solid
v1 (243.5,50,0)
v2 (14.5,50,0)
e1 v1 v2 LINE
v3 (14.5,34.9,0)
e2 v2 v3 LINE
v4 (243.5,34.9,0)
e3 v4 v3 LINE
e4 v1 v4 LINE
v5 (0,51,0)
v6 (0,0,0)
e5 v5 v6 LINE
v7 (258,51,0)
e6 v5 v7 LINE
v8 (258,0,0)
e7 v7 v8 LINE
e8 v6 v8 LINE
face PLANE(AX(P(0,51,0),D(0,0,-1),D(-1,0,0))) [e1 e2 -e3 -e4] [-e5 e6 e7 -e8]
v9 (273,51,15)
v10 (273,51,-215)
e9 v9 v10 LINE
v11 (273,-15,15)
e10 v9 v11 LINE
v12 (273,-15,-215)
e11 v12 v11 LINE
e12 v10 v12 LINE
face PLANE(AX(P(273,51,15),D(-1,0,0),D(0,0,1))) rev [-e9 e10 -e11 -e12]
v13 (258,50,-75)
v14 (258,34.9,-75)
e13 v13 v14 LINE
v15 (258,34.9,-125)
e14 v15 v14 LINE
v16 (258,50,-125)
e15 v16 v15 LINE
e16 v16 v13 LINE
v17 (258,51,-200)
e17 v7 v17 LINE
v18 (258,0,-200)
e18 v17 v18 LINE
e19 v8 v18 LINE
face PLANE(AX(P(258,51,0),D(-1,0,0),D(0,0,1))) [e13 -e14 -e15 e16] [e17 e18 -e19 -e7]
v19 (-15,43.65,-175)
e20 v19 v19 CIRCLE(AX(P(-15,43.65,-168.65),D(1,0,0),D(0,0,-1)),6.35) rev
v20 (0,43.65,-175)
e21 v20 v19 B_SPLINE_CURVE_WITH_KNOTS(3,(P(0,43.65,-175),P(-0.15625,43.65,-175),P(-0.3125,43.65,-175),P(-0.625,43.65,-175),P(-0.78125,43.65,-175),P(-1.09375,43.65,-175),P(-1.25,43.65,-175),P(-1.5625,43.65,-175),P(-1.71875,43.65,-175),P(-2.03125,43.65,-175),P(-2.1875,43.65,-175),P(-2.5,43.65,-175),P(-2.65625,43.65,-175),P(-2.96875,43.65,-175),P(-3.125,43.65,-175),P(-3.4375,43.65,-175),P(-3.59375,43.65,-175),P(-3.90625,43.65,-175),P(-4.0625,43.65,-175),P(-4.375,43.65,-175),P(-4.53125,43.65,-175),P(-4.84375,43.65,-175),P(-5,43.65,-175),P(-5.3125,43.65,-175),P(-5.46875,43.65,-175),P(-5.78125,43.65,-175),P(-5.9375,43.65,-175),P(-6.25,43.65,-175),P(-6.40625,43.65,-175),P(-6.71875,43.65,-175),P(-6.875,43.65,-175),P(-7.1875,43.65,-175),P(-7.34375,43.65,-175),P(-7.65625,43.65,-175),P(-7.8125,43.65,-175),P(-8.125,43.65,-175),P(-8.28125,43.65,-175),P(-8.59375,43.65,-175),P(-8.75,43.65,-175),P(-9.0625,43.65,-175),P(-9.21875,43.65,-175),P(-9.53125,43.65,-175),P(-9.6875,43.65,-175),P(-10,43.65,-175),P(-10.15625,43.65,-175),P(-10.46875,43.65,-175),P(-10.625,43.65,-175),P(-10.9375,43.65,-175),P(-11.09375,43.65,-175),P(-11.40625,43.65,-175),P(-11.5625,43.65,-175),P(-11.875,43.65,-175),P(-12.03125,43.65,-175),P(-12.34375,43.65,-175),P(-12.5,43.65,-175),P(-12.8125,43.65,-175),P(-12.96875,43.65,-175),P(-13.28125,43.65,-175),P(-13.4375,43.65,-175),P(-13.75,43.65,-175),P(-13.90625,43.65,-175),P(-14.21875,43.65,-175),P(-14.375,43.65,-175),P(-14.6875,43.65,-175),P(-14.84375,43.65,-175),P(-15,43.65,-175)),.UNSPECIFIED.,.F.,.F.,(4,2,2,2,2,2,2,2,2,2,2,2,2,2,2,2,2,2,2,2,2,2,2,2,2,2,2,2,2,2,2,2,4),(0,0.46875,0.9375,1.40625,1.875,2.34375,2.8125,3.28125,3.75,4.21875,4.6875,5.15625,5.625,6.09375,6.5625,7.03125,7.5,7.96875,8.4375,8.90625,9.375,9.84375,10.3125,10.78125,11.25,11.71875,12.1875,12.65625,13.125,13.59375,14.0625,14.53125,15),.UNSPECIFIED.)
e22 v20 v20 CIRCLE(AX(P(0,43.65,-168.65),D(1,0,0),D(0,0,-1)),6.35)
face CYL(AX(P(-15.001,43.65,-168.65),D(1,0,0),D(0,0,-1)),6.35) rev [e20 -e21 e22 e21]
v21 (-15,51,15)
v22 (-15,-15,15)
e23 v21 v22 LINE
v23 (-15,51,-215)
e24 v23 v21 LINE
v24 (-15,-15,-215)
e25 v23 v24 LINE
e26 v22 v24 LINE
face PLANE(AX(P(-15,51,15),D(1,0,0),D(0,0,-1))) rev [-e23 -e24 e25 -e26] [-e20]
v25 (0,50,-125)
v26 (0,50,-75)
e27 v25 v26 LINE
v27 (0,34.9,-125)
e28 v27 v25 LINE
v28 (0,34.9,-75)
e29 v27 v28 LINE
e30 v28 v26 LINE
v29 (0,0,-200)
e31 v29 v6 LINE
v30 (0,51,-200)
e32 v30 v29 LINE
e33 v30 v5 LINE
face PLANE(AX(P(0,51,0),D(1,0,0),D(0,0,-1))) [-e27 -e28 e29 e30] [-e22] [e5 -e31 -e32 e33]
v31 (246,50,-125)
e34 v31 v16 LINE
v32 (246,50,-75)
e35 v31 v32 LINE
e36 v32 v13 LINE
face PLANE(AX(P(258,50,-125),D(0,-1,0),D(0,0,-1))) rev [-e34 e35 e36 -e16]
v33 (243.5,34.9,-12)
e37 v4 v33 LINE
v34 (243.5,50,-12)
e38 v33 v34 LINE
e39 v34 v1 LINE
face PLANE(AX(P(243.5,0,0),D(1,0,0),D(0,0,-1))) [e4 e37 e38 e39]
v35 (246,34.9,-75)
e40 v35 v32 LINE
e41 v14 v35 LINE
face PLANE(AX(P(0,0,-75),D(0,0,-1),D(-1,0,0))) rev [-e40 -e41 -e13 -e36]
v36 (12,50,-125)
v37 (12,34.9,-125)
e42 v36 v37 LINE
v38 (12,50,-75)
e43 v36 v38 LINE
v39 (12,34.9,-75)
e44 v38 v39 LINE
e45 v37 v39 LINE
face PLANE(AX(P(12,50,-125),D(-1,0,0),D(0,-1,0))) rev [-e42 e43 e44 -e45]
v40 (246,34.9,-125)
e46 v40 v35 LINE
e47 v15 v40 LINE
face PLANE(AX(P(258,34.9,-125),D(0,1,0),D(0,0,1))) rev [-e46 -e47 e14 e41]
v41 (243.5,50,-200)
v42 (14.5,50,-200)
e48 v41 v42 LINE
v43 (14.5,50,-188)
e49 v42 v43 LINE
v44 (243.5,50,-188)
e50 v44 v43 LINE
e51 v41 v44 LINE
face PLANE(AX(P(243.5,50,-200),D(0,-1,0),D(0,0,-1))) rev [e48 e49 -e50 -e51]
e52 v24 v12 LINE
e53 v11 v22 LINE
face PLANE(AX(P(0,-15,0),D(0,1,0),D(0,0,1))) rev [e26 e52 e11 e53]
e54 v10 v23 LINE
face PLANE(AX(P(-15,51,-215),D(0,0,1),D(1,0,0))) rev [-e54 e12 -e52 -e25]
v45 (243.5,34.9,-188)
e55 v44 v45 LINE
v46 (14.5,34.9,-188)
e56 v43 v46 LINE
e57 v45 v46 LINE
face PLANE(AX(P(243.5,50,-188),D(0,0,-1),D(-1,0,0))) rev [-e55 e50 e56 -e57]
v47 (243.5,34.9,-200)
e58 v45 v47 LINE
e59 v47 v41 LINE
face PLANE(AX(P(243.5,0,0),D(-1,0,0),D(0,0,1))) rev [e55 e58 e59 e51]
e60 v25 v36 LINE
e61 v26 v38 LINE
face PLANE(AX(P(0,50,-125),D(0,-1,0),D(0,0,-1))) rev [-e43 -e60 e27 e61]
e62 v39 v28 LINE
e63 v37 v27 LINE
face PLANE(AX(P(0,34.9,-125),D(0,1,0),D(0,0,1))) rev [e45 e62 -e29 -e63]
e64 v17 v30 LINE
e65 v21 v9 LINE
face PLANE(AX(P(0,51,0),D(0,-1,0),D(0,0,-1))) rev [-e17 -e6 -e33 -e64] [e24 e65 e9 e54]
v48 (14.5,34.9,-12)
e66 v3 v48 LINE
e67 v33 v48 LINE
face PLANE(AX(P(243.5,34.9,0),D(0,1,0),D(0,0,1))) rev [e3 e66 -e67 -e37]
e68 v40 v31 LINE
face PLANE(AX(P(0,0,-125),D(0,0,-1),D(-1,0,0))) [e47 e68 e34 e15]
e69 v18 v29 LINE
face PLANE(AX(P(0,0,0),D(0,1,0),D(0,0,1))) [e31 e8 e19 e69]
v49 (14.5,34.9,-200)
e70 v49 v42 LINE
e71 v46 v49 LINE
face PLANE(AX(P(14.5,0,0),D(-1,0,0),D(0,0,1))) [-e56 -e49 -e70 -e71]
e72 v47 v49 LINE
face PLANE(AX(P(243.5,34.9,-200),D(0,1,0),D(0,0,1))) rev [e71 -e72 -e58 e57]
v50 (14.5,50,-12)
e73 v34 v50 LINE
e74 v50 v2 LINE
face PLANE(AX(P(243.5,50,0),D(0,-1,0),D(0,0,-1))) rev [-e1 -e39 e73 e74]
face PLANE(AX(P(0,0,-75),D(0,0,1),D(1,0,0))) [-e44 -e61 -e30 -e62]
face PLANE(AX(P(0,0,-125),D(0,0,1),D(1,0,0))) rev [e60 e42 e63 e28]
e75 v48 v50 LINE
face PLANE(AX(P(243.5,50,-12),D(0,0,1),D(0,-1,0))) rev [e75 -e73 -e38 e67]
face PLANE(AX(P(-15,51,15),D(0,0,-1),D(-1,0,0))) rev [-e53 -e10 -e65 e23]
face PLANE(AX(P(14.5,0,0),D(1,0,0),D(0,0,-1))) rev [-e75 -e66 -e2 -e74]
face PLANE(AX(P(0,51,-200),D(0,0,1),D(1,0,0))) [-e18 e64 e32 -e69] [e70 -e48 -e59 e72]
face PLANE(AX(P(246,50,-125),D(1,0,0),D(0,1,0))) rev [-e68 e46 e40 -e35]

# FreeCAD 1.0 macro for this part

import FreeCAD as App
import Part
import Sketcher

doc = App.newDocument("Part")
body = doc.addObject("PartDesign::Body", "Body")

# Sketch on XZ plane
sketch1 = body.newObject("Sketcher::SketchObject", "Sketch")
sketch1.AttachmentSupport = (doc.getObject("XZ_Plane"), [""])
sketch1.MapMode = "FlatFace"
sketch1.addGeometry([
    Part.LineSegment(App.Vector(-15, -215, 0), App.Vector(-15, 15, 0)),  # 0
    Part.LineSegment(App.Vector(-15, 15, 0), App.Vector(273, 15, 0)),  # 1
    Part.LineSegment(App.Vector(273, 15, 0), App.Vector(273, -215, 0)),  # 2
    Part.LineSegment(App.Vector(273, -215, 0), App.Vector(-15, -215, 0)),  # 3
    Part.LineSegment(App.Vector(258, 0, 0), App.Vector(0, 0, 0)),  # 4
    Part.LineSegment(App.Vector(0, 0, 0), App.Vector(0, -200, 0)),  # 5
    Part.LineSegment(App.Vector(0, -200, 0), App.Vector(258, -200, 0)),  # 6
    Part.LineSegment(App.Vector(258, -200, 0), App.Vector(258, 0, 0)),  # 7
], False)
sketch1.addConstraint([
    Sketcher.Constraint("Coincident", 0, 2, 1, 1),
    Sketcher.Constraint("Coincident", 1, 2, 2, 1),
    Sketcher.Constraint("Coincident", 2, 2, 3, 1),
    Sketcher.Constraint("Coincident", 3, 2, 0, 1),
    Sketcher.Constraint("Coincident", 4, 2, 5, 1),
    Sketcher.Constraint("Coincident", 5, 2, 6, 1),
    Sketcher.Constraint("Coincident", 6, 2, 7, 1),
    Sketcher.Constraint("Coincident", 7, 2, 4, 1),
    Sketcher.Constraint("Vertical", 0),
    Sketcher.Constraint("Horizontal", 1),
    Sketcher.Constraint("Vertical", 2),
    Sketcher.Constraint("Horizontal", 3),
    Sketcher.Constraint("Horizontal", 4),
    Sketcher.Constraint("Vertical", 5),
    Sketcher.Constraint("Horizontal", 6),
    Sketcher.Constraint("Vertical", 7),
    Sketcher.Constraint("Coincident", 4, 2, -1, 1),
    Sketcher.Constraint("DistanceX", 1, 1, 1, 2, 288.0),
    Sketcher.Constraint("DistanceX", 4, 2, 4, 1, 258.0),
    Sketcher.Constraint("DistanceY", 0, 1, 0, 2, 230.0),
    Sketcher.Constraint("DistanceY", 5, 2, 5, 1, 200.0),
    Sketcher.Constraint("DistanceX", 0, 2, -1, 1, 15.0),
    Sketcher.Constraint("DistanceY", -1, 1, 0, 2, 15.0),
])
pad1 = body.newObject("PartDesign::Pad", "Pad")
pad1.Profile = sketch1
pad1.Length = 51
pad1.Reversed = True

# Sketch on XZ plane
sketch2 = body.newObject("Sketcher::SketchObject", "Sketch001")
sketch2.AttachmentSupport = (doc.getObject("XZ_Plane"), [""])
sketch2.MapMode = "FlatFace"
sketch2.addGeometry([
    Part.LineSegment(App.Vector(-15, 15, 0), App.Vector(-15, -215, 0)),
    Part.LineSegment(App.Vector(-15, -215, 0), App.Vector(273, -215, 0)),
    Part.LineSegment(App.Vector(273, -215, 0), App.Vector(273, 15, 0)),
    Part.LineSegment(App.Vector(273, 15, 0), App.Vector(-15, 15, 0)),
], False)
sketch2.addConstraint([
    Sketcher.Constraint("Coincident", 0, 2, 1, 1),
    Sketcher.Constraint("Coincident", 1, 2, 2, 1),
    Sketcher.Constraint("Coincident", 2, 2, 3, 1),
    Sketcher.Constraint("Coincident", 3, 2, 0, 1),
    Sketcher.Constraint("Vertical", 0),
    Sketcher.Constraint("Horizontal", 1),
    Sketcher.Constraint("Vertical", 2),
    Sketcher.Constraint("Horizontal", 3),
    Sketcher.Constraint("DistanceX", 1, 1, 1, 2, 288.0),
    Sketcher.Constraint("DistanceY", 0, 2, 0, 1, 230.0),
    Sketcher.Constraint("DistanceX", 0, 2, -1, 1, 15.0),
    Sketcher.Constraint("DistanceY", 0, 2, -1, 1, 215.0),
])
pad2 = body.newObject("PartDesign::Pad", "Pad001")
pad2.Profile = sketch2
pad2.Length = 15

# Sketch on YZ plane
sketch3 = body.newObject("Sketcher::SketchObject", "Sketch002")
sketch3.AttachmentSupport = (doc.getObject("YZ_Plane"), [""])
sketch3.MapMode = "FlatFace"
sketch3.AttachmentOffset = App.Placement(App.Vector(0, 0, 129), App.Rotation())
sketch3.addGeometry([
    Part.LineSegment(App.Vector(50, 0, 0), App.Vector(35, 0, 0)),  # 0
    Part.LineSegment(App.Vector(35, 0, 0), App.Vector(35, -12, 0)),  # 1
    Part.LineSegment(App.Vector(35, -12, 0), App.Vector(50, -12, 0)),  # 2
    Part.LineSegment(App.Vector(50, -12, 0), App.Vector(50, 0, 0)),  # 3
    Part.LineSegment(App.Vector(50, -188, 0), App.Vector(35, -188, 0)),  # 4
    Part.LineSegment(App.Vector(35, -188, 0), App.Vector(35, -200, 0)),  # 5
    Part.LineSegment(App.Vector(35, -200, 0), App.Vector(50, -200, 0)),  # 6
    Part.LineSegment(App.Vector(50, -200, 0), App.Vector(50, -188, 0)),  # 7
], False)
sketch3.addConstraint([
    Sketcher.Constraint("Coincident", 0, 2, 1, 1),
    Sketcher.Constraint("Coincident", 1, 2, 2, 1),
    Sketcher.Constraint("Coincident", 2, 2, 3, 1),
    Sketcher.Constraint("Coincident", 3, 2, 0, 1),
    Sketcher.Constraint("Coincident", 4, 2, 5, 1),
    Sketcher.Constraint("Coincident", 5, 2, 6, 1),
    Sketcher.Constraint("Coincident", 6, 2, 7, 1),
    Sketcher.Constraint("Coincident", 7, 2, 4, 1),
    Sketcher.Constraint("Horizontal", 0),
    Sketcher.Constraint("Vertical", 1),
    Sketcher.Constraint("Horizontal", 2),
    Sketcher.Constraint("Vertical", 3),
    Sketcher.Constraint("Horizontal", 4),
    Sketcher.Constraint("Vertical", 5),
    Sketcher.Constraint("Horizontal", 6),
    Sketcher.Constraint("Vertical", 7),
    Sketcher.Constraint("PointOnObject", 0, 2, -1),
    Sketcher.Constraint("Vertical", 1, 2, 4, 2),
    Sketcher.Constraint("Vertical", 3, 2, 6, 2),
    Sketcher.Constraint("Equal", 3, 5),
    Sketcher.Constraint("DistanceY", 1, 2, 1, 1, 12.0),
    Sketcher.Constraint("DistanceX", 0, 2, 0, 1, 15.1),
    Sketcher.Constraint("DistanceX", -1, 1, 2, 2, 50.0),
    Sketcher.Constraint("DistanceY", 4, 2, -1, 1, 188.0),
])
pad3 = body.newObject("PartDesign::Pad", "Pad002")
pad3.Profile = sketch3
pad3.Length = 229
pad3.Midplane = True

# Sketch on XY plane
sketch4 = body.newObject("Sketcher::SketchObject", "Sketch003")
sketch4.AttachmentSupport = (doc.getObject("XY_Plane"), [""])
sketch4.MapMode = "FlatFace"
sketch4.AttachmentOffset = App.Placement(App.Vector(0, 0, -100), App.Rotation())
sketch4.addGeometry([
    Part.LineSegment(App.Vector(258, 50, 0), App.Vector(258, 35, 0)),  # 0
    Part.LineSegment(App.Vector(258, 35, 0), App.Vector(246, 35, 0)),  # 1
    Part.LineSegment(App.Vector(246, 35, 0), App.Vector(246, 50, 0)),  # 2
    Part.LineSegment(App.Vector(246, 50, 0), App.Vector(258, 50, 0)),  # 3
    Part.LineSegment(App.Vector(12, 50, 0), App.Vector(12, 35, 0)),  # 4
    Part.LineSegment(App.Vector(12, 35, 0), App.Vector(0, 35, 0)),  # 5
    Part.LineSegment(App.Vector(0, 35, 0), App.Vector(0, 50, 0)),  # 6
    Part.LineSegment(App.Vector(0, 50, 0), App.Vector(12, 50, 0)),  # 7
], False)
sketch4.addConstraint([
    Sketcher.Constraint("Coincident", 0, 2, 1, 1),
    Sketcher.Constraint("Coincident", 1, 2, 2, 1),
    Sketcher.Constraint("Coincident", 2, 2, 3, 1),
    Sketcher.Constraint("Coincident", 3, 2, 0, 1),
    Sketcher.Constraint("Coincident", 4, 2, 5, 1),
    Sketcher.Constraint("Coincident", 5, 2, 6, 1),
    Sketcher.Constraint("Coincident", 6, 2, 7, 1),
    Sketcher.Constraint("Coincident", 7, 2, 4, 1),
    Sketcher.Constraint("Vertical", 0),
    Sketcher.Constraint("Horizontal", 1),
    Sketcher.Constraint("Vertical", 2),
    Sketcher.Constraint("Horizontal", 3),
    Sketcher.Constraint("Vertical", 4),
    Sketcher.Constraint("Horizontal", 5),
    Sketcher.Constraint("Vertical", 6),
    Sketcher.Constraint("Horizontal", 7),
    Sketcher.Constraint("PointOnObject", 5, 2, -2),
    Sketcher.Constraint("Horizontal", 1, 2, 4, 2),
    Sketcher.Constraint("Horizontal", 3, 2, 6, 2),
    Sketcher.Constraint("Equal", 3, 5),
    Sketcher.Constraint("DistanceX", 1, 2, 1, 1, 12.0),
    Sketcher.Constraint("DistanceY", 0, 2, 0, 1, 15.1),
    Sketcher.Constraint("DistanceX", -1, 1, 0, 2, 258.0),
    Sketcher.Constraint("DistanceY", -1, 1, 2, 2, 50.0),
])
pad4 = body.newObject("PartDesign::Pad", "Pad003")
pad4.Profile = sketch4
pad4.Length = 50
pad4.Midplane = True

# Sketch on YZ plane
sketch5 = body.newObject("Sketcher::SketchObject", "Sketch004")
sketch5.AttachmentSupport = (doc.getObject("YZ_Plane"), [""])
sketch5.MapMode = "FlatFace"
sketch5.addGeometry(Part.Circle(App.Vector(44, -169, 0), App.Vector(0, 0, 1), 6), False)
sketch5.addConstraint([
    Sketcher.Constraint("Diameter", 0, 12.7),
    Sketcher.Constraint("DistanceX", -1, 1, 0, 3, 43.65),
    Sketcher.Constraint("DistanceY", 0, 3, -1, 1, 168.65),
])
pocket1 = body.newObject("PartDesign::Pocket", "Pocket")
pocket1.Profile = sketch5
pocket1.Type = "UpToFirst"

doc.recompute()
